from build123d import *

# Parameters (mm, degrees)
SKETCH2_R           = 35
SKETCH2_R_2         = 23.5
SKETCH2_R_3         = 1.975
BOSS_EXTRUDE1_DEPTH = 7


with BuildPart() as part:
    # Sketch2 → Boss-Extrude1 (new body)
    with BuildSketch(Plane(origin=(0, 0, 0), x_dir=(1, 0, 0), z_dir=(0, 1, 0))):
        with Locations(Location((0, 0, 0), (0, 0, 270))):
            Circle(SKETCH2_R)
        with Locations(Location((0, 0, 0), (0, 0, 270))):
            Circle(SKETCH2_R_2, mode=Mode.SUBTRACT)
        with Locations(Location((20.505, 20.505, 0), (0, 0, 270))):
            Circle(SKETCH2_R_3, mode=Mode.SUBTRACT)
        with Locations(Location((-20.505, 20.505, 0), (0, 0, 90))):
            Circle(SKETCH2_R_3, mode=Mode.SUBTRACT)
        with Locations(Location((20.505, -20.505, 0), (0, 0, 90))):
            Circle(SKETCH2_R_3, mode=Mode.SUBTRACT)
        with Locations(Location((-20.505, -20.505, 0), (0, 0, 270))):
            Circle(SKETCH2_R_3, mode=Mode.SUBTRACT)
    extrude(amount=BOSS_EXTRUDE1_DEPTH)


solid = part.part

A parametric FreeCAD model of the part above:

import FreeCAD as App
import Part
import Sketcher

V = App.Vector
Q = App.Units.Quantity

doc = App.newDocument("Part")
body = doc.addObject("PartDesign::Body", "Body")

sketch1 = doc.addObject("Sketcher::SketchObject", "Sketch")
body.addObject(sketch1)
sketch1.AttachmentSupport = (doc.XZ_Plane, [""])
sketch1.MapMode = "FlatFace"
sketch1.addGeometry(Part.Circle(V(0, 0, 0), V(0, 0, 1), 35), False)
sketch1.addGeometry(Part.Circle(V(-20.505, -20.505, 0), V(0, 0, 1), 1.975), False)
sketch1.addGeometry(Part.Circle(V(-20.505, 20.505, 0), V(0, 0, 1), 1.975), False)
sketch1.addGeometry(Part.Circle(V(20.505, -20.505, 0), V(0, 0, 1), 1.975), False)
sketch1.addGeometry(Part.Circle(V(0, 0, 0), V(0, 0, 1), 23.5), False)
sketch1.addGeometry(Part.Circle(V(20.505, 20.505, 0), V(0, 0, 1), 1.975), False)
sketch1.addConstraint(Sketcher.Constraint("Coincident", 0, 3, -1, 1))
sketch1.addConstraint(Sketcher.Constraint("Coincident", 4, 3, -1, 1))
sketch1.addConstraint(Sketcher.Constraint("Equal", 1, 2))
sketch1.addConstraint(Sketcher.Constraint("Equal", 2, 3))
sketch1.addConstraint(Sketcher.Constraint("Equal", 3, 5))
sketch1.addConstraint(Sketcher.Constraint("Symmetric", 2, 3, 3, 3, -1, 1))
sketch1.addConstraint(Sketcher.Constraint("Symmetric", 1, 3, 5, 3, -1, 1))
sketch1.addConstraint(Sketcher.Constraint("Symmetric", 1, 3, 3, 3, -2))
sketch1.addConstraint(Sketcher.Constraint("Diameter", 0, Q("70 mm")))
sketch1.addConstraint(Sketcher.Constraint("Diameter", 4, Q("47 mm")))
sketch1.addConstraint(Sketcher.Constraint("Diameter", 1, Q("3.95 mm")))
sketch1.addConstraint(Sketcher.Constraint("DistanceY", 1, 3, 2, 3, Q("41.01 mm")))
sketch1.addConstraint(Sketcher.Constraint("DistanceX", 1, 3, 3, 3, Q("41.01 mm")))
pad1 = doc.addObject("PartDesign::Pad", "Pad")
body.addObject(pad1)
pad1.Profile = sketch1
pad1.Length = 7
pad1.Reversed = True

doc.recompute()
